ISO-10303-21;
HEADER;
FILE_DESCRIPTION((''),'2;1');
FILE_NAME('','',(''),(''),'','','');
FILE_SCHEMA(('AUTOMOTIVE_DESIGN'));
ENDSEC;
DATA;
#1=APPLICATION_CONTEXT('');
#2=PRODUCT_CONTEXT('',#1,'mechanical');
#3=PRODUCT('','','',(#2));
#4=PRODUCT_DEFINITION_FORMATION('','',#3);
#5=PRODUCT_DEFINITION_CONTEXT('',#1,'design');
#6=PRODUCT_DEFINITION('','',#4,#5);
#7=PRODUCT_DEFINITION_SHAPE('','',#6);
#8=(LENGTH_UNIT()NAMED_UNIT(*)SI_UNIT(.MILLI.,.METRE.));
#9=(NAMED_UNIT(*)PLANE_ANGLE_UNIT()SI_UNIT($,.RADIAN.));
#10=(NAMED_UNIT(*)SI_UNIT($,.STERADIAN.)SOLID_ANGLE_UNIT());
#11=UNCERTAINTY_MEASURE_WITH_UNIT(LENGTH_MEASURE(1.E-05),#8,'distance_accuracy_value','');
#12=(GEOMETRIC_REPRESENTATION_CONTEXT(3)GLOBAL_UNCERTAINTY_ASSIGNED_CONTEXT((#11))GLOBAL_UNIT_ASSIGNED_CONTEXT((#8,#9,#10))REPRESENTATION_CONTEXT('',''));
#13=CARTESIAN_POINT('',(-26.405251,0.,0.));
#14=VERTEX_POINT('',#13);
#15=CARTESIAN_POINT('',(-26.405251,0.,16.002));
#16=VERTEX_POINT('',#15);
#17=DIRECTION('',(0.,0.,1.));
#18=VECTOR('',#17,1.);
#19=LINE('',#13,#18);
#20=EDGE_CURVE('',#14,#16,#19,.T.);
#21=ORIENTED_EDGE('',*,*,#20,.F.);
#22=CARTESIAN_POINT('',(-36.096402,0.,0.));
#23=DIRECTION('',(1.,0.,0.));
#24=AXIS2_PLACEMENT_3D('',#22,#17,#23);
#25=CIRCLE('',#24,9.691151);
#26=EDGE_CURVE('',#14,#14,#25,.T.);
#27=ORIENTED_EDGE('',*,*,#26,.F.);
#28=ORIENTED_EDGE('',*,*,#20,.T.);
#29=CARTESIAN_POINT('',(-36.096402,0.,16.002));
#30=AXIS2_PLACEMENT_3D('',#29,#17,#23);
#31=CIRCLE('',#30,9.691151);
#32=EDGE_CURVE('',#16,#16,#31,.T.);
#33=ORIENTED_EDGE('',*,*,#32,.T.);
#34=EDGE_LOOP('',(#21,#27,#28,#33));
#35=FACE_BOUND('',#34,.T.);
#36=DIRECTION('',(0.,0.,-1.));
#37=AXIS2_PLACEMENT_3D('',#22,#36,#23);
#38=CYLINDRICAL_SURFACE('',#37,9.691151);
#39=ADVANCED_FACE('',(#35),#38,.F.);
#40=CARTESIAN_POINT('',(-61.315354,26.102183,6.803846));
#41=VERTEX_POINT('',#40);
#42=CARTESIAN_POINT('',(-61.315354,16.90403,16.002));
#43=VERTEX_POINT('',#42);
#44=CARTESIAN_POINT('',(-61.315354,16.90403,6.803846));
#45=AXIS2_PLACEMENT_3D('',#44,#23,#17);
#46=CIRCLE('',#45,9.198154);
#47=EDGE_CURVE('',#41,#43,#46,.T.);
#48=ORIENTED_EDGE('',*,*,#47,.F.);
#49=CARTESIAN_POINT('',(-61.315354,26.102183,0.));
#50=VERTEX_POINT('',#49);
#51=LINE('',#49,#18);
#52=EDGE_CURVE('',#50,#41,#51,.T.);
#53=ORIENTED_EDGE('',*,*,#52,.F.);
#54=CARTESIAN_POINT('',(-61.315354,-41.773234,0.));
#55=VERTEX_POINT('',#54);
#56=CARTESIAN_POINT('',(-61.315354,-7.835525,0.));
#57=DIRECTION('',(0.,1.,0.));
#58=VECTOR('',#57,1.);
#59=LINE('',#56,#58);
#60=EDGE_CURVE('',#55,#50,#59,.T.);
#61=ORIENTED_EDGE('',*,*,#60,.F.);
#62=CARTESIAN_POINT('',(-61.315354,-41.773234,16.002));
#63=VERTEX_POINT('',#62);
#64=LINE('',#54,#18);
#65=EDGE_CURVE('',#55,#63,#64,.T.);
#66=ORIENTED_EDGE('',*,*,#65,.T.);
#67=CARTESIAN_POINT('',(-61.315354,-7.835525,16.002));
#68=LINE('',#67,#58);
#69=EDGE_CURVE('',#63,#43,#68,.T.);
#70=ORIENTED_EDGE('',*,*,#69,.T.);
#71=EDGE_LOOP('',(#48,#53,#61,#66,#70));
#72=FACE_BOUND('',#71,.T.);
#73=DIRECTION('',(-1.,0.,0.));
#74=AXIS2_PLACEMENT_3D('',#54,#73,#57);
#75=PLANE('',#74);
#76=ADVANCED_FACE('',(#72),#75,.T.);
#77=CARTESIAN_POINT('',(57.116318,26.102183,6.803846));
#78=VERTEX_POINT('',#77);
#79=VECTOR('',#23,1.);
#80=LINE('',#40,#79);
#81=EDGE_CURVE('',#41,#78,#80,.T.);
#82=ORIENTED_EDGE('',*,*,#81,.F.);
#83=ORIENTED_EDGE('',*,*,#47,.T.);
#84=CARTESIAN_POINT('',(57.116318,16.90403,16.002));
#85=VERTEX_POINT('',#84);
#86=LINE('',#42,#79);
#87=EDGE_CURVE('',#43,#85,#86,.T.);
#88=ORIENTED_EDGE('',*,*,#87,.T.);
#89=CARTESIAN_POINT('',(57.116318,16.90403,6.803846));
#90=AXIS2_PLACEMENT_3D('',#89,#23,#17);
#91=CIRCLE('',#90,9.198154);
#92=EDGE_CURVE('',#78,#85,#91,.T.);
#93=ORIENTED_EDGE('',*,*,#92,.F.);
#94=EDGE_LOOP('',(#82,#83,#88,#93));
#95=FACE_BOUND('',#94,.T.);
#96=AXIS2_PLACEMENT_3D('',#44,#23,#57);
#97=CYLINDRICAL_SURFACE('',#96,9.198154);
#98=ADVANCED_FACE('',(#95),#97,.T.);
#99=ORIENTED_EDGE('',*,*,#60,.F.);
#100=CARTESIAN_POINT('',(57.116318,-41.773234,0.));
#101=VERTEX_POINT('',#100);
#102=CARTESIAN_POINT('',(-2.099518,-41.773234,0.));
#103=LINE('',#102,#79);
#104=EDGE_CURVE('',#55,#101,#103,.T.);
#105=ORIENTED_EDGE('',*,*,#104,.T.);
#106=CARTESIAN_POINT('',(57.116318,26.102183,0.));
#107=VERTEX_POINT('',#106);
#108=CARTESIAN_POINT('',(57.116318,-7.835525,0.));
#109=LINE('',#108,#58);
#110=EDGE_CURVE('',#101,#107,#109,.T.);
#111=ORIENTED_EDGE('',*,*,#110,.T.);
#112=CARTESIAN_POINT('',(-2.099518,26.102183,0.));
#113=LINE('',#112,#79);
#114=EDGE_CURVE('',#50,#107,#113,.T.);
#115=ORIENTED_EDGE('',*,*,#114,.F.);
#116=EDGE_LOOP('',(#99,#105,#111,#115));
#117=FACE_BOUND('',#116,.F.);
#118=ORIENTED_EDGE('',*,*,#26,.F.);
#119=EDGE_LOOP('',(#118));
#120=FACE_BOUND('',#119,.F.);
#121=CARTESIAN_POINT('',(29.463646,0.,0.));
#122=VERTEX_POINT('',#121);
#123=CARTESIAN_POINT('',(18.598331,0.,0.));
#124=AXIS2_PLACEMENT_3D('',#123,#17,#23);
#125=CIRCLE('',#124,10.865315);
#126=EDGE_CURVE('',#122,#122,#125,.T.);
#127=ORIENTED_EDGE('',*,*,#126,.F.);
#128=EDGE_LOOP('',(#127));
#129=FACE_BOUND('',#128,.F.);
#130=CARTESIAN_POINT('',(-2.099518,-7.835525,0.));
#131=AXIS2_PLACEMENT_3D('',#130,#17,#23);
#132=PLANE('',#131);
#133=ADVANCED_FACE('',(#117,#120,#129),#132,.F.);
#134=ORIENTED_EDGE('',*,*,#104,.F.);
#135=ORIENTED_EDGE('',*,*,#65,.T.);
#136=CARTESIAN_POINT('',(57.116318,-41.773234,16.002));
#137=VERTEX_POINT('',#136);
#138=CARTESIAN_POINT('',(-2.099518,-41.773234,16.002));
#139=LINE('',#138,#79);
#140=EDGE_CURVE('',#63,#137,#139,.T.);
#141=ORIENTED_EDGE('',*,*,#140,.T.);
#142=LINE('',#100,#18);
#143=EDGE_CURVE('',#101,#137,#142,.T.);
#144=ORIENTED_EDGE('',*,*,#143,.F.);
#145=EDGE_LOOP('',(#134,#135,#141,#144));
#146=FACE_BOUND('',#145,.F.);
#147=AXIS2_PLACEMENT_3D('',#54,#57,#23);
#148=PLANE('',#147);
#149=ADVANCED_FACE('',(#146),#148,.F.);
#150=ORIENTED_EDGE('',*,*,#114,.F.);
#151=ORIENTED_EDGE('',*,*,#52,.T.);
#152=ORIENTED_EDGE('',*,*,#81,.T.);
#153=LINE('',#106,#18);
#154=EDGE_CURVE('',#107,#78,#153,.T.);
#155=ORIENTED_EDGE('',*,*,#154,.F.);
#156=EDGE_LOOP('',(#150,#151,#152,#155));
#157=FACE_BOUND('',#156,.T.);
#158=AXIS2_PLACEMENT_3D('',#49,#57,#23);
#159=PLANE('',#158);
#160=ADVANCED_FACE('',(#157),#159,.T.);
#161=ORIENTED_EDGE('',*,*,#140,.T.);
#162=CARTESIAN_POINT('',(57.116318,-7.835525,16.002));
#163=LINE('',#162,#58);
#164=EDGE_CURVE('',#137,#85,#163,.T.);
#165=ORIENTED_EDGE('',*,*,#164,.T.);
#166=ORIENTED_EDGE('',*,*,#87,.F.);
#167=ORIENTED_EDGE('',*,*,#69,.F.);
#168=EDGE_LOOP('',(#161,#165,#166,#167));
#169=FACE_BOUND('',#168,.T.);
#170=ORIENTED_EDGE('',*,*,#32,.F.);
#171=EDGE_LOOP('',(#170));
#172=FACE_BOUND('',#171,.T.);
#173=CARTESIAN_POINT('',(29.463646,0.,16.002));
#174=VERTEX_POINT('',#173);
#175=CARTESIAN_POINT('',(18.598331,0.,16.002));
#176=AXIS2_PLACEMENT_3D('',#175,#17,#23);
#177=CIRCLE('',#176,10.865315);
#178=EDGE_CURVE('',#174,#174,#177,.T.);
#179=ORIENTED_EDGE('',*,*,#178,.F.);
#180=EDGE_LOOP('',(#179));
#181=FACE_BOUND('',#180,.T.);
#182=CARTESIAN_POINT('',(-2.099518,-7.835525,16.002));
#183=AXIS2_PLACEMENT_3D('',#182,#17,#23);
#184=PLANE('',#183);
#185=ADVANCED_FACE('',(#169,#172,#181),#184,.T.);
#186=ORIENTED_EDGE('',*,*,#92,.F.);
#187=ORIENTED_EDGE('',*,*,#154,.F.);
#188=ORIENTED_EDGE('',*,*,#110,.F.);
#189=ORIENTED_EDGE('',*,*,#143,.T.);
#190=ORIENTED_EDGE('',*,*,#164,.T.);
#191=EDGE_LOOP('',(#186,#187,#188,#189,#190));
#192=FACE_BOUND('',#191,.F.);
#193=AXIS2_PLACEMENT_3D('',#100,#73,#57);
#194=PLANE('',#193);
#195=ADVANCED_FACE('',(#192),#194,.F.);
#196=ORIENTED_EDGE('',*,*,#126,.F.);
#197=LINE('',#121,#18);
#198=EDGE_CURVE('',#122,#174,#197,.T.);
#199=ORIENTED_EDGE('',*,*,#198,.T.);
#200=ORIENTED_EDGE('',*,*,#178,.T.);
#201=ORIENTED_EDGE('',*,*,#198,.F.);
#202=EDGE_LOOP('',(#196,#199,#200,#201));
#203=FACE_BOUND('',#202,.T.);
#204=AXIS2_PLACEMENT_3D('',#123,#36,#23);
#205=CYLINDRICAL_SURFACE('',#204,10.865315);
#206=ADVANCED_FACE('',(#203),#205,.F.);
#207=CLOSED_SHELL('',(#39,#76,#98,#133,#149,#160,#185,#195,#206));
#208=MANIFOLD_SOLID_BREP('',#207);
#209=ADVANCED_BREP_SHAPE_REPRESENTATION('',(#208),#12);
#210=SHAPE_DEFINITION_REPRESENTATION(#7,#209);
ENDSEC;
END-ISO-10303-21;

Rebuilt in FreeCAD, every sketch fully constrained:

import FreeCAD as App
import Part
import Sketcher
Q = App.Units.Quantity


def edges_at(feature, points):
    """Names of the edges that pass closest to the given points."""
    edges = feature.Shape.Edges
    near = lambda p: min(range(len(edges)), key=lambda i: edges[i].distToShape(Part.Vertex(*p))[0])
    return sorted({f"Edge{near(p) + 1}" for p in points})


def add_polygon(sketch, points):
    """Adds a closed chain of lines whose ends are joined by coincident constraints."""
    first, n = sketch.GeometryCount, len(points)
    for a, b in zip(points, points[1:] + points[:1]):
        sketch.addGeometry(Part.LineSegment(App.Vector(*a, 0), App.Vector(*b, 0)), False)
    for i in range(n):
        sketch.addConstraint(Sketcher.Constraint("Coincident", first + i, 2, first + (i + 1) % n, 1))

doc = App.newDocument("Part")
params = doc.addObject("Spreadsheet::Sheet", "Params")
for row, (alias, value) in enumerate([
    ("pad1_length", "0.63 in"),
    ("fillet_radius", "9.198154 mm"),
], start=1):
    params.set(f"A{row}", alias)
    params.set(f"B{row}", "=" + value)
    params.setAlias(f"B{row}", alias)

body = doc.addObject("PartDesign::Body", "Body")

sketch1 = doc.addObject("Sketcher::SketchObject", "Sketch")
body.addObject(sketch1)
sketch1.AttachmentSupport = (doc.XY_Plane, [""])
sketch1.MapMode = "FlatFace"
add_polygon(sketch1, [(-61, 26), (-61, -42), (57, -42), (57, 26)])
sketch1.addGeometry(Part.Circle(App.Vector(-36, 0, 0), App.Vector(0, 0, 1), 10), False)
sketch1.addGeometry(Part.Circle(App.Vector(19, 0, 0), App.Vector(0, 0, 1), 11), False)
sketch1.addConstraint(Sketcher.Constraint("Vertical", 0))
sketch1.addConstraint(Sketcher.Constraint("Horizontal", 1))
sketch1.addConstraint(Sketcher.Constraint("Vertical", 2))
sketch1.addConstraint(Sketcher.Constraint("Horizontal", 3))
sketch1.addConstraint(Sketcher.Constraint("PointOnObject", 4, 3, -1))
sketch1.addConstraint(Sketcher.Constraint("PointOnObject", 5, 3, -1))
sketch1.addConstraint(Sketcher.Constraint("Diameter", 4, Q("19.382302 mm")))
sketch1.addConstraint(Sketcher.Constraint("Diameter", 5, Q("21.73063 mm")))
sketch1.addConstraint(Sketcher.Constraint("DistanceX", 1, 1, 1, 2, Q("118.431672 mm")))
sketch1.addConstraint(Sketcher.Constraint("DistanceX", 4, 3, -1, 1, Q("36.096402 mm")))
sketch1.addConstraint(Sketcher.Constraint("DistanceY", 0, 2, 0, 1, Q("67.875417 mm")))
sketch1.addConstraint(Sketcher.Constraint("DistanceX", -1, 1, 5, 3, Q("18.598331 mm")))
sketch1.addConstraint(Sketcher.Constraint("DistanceX", 4, 3, 1, 2, Q("93.21272 mm")))
sketch1.addConstraint(Sketcher.Constraint("DistanceY", 0, 2, -1, 1, Q("41.773234 mm")))
pad1 = doc.addObject("PartDesign::Pad", "Pad")
body.addObject(pad1)
pad1.Profile = sketch1
pad1.setExpression("Length", "Params.pad1_length")
doc.recompute()

fillet = doc.addObject("PartDesign::Fillet", "Fillet")
body.addObject(fillet)
fillet.Base = (pad1, edges_at(pad1, [(-2.1, 26.102, 16.002)]))
fillet.setExpression("Radius", "Params.fillet_radius")

doc.recompute()
